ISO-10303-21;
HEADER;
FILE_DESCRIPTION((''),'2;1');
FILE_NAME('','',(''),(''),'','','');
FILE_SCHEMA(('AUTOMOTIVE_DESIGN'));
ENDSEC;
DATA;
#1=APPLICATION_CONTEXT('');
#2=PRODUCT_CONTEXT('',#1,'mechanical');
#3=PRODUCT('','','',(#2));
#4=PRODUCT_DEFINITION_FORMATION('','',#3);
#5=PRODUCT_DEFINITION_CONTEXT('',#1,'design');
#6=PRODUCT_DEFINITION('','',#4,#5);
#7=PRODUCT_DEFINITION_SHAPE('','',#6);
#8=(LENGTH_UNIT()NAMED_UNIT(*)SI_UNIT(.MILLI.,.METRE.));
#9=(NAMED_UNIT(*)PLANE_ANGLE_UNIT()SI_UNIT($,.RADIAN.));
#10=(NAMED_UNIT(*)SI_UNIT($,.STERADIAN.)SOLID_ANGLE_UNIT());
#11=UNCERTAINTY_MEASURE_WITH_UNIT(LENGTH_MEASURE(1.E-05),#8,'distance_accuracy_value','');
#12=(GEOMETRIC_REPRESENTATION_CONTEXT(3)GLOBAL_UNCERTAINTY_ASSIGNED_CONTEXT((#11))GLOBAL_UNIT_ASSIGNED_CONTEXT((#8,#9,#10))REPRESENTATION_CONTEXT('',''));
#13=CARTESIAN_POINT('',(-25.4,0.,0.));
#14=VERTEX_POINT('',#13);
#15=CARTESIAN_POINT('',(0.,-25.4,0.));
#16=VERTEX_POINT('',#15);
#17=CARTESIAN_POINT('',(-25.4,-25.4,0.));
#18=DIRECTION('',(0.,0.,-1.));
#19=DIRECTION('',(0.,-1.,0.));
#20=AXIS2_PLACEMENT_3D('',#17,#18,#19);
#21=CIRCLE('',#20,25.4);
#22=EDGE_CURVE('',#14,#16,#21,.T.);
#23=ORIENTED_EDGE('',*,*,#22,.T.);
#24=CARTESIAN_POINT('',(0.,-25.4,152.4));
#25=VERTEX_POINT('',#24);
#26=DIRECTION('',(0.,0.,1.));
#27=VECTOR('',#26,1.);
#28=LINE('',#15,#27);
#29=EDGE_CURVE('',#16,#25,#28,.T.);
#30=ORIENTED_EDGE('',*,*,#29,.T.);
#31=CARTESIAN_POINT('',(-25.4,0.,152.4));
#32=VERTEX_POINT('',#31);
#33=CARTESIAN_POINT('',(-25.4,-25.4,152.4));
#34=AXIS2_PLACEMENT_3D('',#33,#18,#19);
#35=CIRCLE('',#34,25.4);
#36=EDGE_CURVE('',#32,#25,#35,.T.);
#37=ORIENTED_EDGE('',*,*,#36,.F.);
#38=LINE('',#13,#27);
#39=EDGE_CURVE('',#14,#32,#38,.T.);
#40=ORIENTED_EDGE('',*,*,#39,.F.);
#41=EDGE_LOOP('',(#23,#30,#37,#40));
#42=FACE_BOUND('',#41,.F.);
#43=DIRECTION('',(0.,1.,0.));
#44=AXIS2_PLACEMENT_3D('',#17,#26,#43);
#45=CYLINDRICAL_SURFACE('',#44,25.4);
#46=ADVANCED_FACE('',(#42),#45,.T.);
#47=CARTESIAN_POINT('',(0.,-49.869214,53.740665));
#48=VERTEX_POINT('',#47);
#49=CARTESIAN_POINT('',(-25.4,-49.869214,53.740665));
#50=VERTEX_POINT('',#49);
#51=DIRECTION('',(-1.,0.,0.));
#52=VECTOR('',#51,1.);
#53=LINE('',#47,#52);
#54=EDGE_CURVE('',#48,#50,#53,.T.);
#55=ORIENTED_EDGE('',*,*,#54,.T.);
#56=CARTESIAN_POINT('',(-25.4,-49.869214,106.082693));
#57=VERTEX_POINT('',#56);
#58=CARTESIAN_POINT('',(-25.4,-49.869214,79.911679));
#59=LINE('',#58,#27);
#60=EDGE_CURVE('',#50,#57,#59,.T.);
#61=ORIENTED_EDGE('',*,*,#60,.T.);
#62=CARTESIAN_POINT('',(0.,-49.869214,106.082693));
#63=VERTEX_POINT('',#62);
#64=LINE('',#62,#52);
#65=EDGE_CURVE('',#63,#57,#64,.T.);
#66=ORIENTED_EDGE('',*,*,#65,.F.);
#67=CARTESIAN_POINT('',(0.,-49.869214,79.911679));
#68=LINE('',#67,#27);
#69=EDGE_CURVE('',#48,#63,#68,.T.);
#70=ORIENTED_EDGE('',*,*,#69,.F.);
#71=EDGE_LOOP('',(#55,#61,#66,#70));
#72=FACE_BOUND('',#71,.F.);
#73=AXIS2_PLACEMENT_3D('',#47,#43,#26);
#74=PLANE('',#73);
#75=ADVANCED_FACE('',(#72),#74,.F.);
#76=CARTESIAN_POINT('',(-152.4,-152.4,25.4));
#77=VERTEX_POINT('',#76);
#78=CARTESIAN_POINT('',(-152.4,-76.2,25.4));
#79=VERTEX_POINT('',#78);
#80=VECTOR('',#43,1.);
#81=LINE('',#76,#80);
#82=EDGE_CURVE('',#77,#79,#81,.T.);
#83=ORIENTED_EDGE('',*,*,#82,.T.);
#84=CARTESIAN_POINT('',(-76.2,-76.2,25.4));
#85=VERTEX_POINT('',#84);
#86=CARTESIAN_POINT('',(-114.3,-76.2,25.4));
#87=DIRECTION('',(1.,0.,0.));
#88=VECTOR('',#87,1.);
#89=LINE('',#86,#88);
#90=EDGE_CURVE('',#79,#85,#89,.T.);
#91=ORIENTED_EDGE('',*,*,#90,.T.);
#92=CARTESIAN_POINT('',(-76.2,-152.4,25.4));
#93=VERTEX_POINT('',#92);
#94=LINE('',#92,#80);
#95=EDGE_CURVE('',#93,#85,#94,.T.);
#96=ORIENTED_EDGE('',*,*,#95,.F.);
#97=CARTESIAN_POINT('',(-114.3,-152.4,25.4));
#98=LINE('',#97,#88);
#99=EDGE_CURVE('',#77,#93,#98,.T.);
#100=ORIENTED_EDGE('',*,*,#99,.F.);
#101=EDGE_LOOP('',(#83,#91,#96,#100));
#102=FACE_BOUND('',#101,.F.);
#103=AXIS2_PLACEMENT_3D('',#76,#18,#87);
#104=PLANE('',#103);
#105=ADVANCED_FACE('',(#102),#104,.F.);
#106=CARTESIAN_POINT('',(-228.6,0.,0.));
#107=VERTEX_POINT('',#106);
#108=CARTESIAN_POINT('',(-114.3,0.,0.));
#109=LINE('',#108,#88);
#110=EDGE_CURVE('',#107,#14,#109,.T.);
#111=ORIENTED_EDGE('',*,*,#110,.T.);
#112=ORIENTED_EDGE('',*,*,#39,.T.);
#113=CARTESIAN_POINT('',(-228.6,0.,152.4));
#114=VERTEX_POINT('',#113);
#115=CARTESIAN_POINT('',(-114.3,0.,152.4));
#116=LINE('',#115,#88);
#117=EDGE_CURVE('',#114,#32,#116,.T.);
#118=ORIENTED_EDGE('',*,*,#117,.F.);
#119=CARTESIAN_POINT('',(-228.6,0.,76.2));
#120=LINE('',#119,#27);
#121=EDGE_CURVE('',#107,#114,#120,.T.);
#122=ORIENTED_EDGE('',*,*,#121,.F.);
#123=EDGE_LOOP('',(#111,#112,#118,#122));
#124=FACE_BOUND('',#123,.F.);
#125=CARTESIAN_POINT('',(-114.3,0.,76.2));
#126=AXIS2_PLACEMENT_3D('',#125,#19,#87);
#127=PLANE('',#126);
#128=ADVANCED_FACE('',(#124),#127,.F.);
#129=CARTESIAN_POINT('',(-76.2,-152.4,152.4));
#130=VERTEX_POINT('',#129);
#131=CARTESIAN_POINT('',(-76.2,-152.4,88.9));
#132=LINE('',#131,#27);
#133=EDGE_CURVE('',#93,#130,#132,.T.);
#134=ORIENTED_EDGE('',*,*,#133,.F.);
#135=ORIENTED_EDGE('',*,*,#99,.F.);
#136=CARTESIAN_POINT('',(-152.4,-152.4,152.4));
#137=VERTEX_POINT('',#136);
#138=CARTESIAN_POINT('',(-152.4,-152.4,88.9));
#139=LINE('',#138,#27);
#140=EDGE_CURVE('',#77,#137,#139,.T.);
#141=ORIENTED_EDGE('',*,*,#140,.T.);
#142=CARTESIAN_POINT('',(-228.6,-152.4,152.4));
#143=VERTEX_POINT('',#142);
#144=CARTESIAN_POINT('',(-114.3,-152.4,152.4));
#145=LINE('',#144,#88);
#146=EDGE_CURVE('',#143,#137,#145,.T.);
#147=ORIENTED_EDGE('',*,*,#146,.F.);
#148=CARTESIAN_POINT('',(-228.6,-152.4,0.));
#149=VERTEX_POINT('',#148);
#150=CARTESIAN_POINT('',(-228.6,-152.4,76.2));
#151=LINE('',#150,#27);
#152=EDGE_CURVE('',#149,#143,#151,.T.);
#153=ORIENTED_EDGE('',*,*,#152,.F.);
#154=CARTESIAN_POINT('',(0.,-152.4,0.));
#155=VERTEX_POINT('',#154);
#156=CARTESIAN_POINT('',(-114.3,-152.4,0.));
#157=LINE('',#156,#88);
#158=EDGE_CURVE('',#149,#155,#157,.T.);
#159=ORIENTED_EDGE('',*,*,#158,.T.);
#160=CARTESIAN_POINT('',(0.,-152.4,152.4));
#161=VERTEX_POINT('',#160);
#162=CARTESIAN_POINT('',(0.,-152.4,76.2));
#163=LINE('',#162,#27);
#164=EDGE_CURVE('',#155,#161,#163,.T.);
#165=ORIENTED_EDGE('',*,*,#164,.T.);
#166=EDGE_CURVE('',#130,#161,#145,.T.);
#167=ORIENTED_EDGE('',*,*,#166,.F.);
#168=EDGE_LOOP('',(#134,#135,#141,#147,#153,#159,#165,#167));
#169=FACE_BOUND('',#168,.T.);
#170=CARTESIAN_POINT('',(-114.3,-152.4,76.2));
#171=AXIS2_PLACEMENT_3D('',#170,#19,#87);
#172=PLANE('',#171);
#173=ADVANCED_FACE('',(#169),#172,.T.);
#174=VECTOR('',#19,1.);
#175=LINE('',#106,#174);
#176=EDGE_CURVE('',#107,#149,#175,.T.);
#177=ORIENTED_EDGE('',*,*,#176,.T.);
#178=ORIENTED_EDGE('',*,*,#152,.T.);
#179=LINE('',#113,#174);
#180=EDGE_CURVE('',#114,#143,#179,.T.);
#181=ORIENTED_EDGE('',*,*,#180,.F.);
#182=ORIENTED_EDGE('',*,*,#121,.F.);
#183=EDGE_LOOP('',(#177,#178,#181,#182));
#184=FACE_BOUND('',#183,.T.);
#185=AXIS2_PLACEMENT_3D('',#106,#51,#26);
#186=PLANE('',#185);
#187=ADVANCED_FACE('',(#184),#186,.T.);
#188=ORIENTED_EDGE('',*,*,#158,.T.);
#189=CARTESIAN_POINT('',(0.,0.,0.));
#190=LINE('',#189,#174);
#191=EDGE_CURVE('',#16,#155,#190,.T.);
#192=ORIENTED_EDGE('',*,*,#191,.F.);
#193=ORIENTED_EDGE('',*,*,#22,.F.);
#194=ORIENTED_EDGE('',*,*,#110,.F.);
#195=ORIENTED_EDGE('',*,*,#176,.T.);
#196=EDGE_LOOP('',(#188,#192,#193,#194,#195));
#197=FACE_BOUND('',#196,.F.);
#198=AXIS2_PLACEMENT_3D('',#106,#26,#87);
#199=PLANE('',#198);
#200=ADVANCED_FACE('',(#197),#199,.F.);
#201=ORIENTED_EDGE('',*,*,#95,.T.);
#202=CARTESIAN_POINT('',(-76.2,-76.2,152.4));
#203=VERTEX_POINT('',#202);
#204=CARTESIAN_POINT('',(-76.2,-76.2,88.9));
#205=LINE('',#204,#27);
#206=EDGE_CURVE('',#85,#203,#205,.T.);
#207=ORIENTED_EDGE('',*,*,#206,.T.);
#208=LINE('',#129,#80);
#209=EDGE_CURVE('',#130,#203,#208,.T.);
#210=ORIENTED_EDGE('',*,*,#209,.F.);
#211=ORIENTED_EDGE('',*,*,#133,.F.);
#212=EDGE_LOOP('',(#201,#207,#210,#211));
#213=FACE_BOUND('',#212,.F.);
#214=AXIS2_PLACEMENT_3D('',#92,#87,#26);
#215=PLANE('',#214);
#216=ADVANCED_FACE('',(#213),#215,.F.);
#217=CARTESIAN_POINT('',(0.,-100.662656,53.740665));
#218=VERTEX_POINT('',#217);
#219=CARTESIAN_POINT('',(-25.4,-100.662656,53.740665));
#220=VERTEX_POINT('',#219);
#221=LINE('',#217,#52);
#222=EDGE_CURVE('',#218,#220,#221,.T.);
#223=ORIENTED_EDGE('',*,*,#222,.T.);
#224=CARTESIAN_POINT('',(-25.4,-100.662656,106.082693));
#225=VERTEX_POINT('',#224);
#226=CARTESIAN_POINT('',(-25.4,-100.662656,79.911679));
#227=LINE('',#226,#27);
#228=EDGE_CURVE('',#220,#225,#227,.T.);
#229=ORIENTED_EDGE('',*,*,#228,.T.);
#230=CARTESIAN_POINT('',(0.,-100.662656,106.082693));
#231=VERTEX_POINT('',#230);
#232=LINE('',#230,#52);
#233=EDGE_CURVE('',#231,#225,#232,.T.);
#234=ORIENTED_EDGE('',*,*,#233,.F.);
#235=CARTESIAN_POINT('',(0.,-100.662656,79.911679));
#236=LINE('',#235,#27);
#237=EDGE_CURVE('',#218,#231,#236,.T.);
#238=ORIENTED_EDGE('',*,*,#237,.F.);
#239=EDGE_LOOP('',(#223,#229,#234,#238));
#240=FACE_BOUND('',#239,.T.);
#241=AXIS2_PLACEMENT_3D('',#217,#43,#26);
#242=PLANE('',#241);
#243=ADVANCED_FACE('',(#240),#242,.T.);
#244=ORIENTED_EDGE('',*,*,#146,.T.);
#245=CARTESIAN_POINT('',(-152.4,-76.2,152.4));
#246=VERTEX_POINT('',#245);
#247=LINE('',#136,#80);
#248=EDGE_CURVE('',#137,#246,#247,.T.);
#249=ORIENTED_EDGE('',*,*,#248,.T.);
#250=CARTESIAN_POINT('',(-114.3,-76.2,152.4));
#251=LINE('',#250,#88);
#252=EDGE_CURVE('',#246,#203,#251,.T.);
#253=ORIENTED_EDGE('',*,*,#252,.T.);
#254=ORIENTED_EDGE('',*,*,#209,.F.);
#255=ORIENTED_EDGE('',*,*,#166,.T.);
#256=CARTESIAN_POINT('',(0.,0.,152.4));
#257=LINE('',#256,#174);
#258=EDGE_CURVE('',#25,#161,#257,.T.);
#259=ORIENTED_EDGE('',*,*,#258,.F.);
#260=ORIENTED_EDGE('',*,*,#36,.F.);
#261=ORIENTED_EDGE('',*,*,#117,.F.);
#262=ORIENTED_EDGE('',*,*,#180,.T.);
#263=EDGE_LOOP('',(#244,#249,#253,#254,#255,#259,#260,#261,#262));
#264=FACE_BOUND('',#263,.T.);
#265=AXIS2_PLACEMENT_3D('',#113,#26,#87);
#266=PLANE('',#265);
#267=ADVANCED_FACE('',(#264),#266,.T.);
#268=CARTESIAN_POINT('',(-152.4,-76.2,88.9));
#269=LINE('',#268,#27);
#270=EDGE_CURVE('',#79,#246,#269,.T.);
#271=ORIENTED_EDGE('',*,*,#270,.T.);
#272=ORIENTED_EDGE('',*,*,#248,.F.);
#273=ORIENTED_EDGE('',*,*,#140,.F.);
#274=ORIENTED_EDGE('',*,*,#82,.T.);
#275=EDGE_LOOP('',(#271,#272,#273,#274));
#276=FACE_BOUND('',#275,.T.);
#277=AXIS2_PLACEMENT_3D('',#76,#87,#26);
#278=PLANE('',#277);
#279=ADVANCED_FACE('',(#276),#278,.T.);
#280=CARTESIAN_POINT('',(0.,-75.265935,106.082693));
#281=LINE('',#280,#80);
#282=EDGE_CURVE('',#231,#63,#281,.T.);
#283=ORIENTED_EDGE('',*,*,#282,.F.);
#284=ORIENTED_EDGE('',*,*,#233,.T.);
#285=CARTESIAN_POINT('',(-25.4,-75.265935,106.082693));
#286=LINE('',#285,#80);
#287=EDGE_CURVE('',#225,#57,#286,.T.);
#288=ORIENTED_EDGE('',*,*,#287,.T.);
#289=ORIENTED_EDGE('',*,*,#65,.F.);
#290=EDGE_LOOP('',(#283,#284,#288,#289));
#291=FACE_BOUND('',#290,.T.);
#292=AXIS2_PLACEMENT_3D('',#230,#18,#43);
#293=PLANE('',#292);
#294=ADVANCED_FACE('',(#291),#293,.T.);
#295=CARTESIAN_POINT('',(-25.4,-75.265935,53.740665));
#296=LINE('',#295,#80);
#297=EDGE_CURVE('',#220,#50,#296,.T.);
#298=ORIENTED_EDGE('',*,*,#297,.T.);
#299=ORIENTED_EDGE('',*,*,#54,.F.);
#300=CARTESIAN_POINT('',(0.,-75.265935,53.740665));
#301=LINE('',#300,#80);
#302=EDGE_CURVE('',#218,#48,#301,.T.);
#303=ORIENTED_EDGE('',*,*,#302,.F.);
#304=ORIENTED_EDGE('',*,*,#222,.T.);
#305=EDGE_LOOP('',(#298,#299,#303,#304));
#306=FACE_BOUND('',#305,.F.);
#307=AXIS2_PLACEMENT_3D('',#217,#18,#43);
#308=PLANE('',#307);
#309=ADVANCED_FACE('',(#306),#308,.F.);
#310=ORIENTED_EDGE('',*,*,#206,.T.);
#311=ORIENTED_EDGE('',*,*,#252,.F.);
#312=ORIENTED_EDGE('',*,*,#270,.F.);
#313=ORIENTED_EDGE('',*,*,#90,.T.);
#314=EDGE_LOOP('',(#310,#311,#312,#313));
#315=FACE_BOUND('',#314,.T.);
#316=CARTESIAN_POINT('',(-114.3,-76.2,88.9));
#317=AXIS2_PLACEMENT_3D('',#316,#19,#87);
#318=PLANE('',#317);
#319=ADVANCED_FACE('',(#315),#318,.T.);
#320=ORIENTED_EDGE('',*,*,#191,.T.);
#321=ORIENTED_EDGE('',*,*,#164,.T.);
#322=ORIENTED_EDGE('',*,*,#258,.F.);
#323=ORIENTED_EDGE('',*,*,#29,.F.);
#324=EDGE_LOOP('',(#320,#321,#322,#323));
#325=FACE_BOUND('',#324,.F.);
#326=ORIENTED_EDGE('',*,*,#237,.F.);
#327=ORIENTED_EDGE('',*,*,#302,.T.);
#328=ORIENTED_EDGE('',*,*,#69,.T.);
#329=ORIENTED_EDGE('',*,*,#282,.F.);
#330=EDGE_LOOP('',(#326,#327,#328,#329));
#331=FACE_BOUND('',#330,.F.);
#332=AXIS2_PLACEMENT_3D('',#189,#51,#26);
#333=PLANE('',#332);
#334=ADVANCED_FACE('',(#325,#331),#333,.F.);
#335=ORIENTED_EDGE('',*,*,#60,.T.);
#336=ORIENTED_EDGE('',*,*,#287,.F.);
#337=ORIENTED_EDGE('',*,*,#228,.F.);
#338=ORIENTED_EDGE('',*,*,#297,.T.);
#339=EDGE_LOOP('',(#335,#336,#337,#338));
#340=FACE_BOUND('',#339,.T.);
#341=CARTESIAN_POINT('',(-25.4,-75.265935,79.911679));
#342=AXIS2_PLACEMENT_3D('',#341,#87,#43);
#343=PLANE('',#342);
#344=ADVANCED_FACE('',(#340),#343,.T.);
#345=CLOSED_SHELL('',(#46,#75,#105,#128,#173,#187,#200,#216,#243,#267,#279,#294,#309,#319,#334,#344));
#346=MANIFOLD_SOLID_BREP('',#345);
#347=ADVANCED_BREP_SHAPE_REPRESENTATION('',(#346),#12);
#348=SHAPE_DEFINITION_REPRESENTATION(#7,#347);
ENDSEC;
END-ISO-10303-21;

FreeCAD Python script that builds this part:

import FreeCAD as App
import Part
import Sketcher

V = App.Vector
Q = App.Units.Quantity


def edges_at(feature, points):
    """Names of the edges that pass closest to the given points."""
    edges = feature.Shape.Edges
    near = lambda p: min(range(len(edges)), key=lambda i: edges[i].distToShape(Part.Vertex(*p))[0])
    return sorted({f"Edge{near(p) + 1}" for p in points})


def add_polygon(sketch, points):
    """Adds a closed chain of lines whose ends are joined by coincident constraints."""
    first, n = sketch.GeometryCount, len(points)
    for a, b in zip(points, points[1:] + points[:1]):
        sketch.addGeometry(Part.LineSegment(App.Vector(*a, 0), App.Vector(*b, 0)), False)
    for i in range(n):
        sketch.addConstraint(Sketcher.Constraint("Coincident", first + i, 2, first + (i + 1) % n, 1))

doc = App.newDocument("Part")
body = doc.addObject("PartDesign::Body", "Body")

sketch1 = body.newObject("Sketcher::SketchObject", "Sketch")
sketch1.AttachmentSupport = (doc.getObject("XZ_Plane"), [""])
sketch1.MapMode = "FlatFace"
add_polygon(sketch1, [(-229, 152), (-229, 0), (0, 0), (0, 152)])
sketch1.addConstraint([
    Sketcher.Constraint("Vertical", 0),
    Sketcher.Constraint("Horizontal", 1),
    Sketcher.Constraint("Vertical", 2),
    Sketcher.Constraint("Horizontal", 3),
    Sketcher.Constraint("Coincident", 1, 2, -1, 1),
    Sketcher.Constraint("DistanceX", 1, 1, 1, 2, Q("9 in")),
    Sketcher.Constraint("DistanceY", 0, 2, 0, 1, Q("6 in")),
])
pad1 = body.newObject("PartDesign::Pad", "Pad")
pad1.Profile = sketch1
pad1.Length = Q("6 in")

sketch2 = body.newObject("Sketcher::SketchObject", "Sketch001")
sketch2.AttachmentSupport = (doc.getObject("XZ_Plane"), [""])
sketch2.MapMode = "FlatFace"
sketch2.AttachmentOffset = App.Placement(V(0, 0, 6 * 25.4), App.Rotation())
add_polygon(sketch2, [(-152, 152), (-152, 25), (-76, 25), (-76, 152)])
sketch2.addConstraint([
    Sketcher.Constraint("Vertical", 0),
    Sketcher.Constraint("Horizontal", 1),
    Sketcher.Constraint("Vertical", 2),
    Sketcher.Constraint("Horizontal", 3),
    Sketcher.Constraint("DistanceX", 1, 1, 1, 2, Q("3 in")),
    Sketcher.Constraint("DistanceY", 0, 2, 0, 1, Q("5 in")),
    Sketcher.Constraint("DistanceX", 0, 2, -1, 1, Q("6 in")),
    Sketcher.Constraint("DistanceY", -1, 1, 0, 2, Q("1 in")),
])
pocket1 = body.newObject("PartDesign::Pocket", "Pocket")
pocket1.Profile = sketch2
pocket1.Length = Q("3 in")

sketch3 = body.newObject("Sketcher::SketchObject", "Sketch002")
sketch3.AttachmentSupport = (doc.getObject("YZ_Plane"), [""])
sketch3.MapMode = "FlatFace"
add_polygon(sketch3, [(-101, 106), (-101, 54), (-50, 54), (-50, 106)])
sketch3.addConstraint([
    Sketcher.Constraint("Vertical", 0),
    Sketcher.Constraint("Horizontal", 1),
    Sketcher.Constraint("Vertical", 2),
    Sketcher.Constraint("Horizontal", 3),
    Sketcher.Constraint("DistanceY", 0, 2, 0, 1, Q("52.342028 mm")),
    Sketcher.Constraint("DistanceX", 1, 1, 1, 2, Q("50.793443 mm")),
    Sketcher.Constraint("DistanceX", 0, 2, -1, 1, Q("100.662656 mm")),
    Sketcher.Constraint("DistanceY", -1, 1, 0, 2, Q("53.740665 mm")),
])
pocket2 = body.newObject("PartDesign::Pocket", "Pocket001")
pocket2.Profile = sketch3
pocket2.Length = Q("1 in")
doc.recompute()

fillet = body.newObject("PartDesign::Fillet", "Fillet")
fillet.Base = (pocket2, edges_at(pocket2, [(0, 0, 76.2)]))
fillet.Radius = Q("1 in")

doc.recompute()
